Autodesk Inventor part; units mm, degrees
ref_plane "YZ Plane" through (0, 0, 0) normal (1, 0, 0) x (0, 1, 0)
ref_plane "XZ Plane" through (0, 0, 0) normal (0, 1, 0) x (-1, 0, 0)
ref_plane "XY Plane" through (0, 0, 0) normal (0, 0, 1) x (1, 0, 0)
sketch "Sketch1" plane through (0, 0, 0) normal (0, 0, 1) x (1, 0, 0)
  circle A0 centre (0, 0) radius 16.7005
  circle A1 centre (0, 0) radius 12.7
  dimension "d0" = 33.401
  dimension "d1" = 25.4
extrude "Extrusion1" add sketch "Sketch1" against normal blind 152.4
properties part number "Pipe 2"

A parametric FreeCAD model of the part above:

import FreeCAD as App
import Part
import Sketcher

V = App.Vector
Q = App.Units.Quantity

doc = App.newDocument("Part")
params = doc.addObject("Spreadsheet::Sheet", "Params")
for row, (alias, value) in enumerate([
    ("sketch1_diameter", "1 in"),
    ("sketch1_diameter2", "1.315 in"),
    ("pad1_length", "6 in"),
], start=1):
    params.set(f"A{row}", alias)
    params.set(f"B{row}", "=" + value)
    params.setAlias(f"B{row}", alias)

body = doc.addObject("PartDesign::Body", "Body")

sketch1 = body.newObject("Sketcher::SketchObject", "Sketch")
sketch1.AttachmentSupport = (doc.getObject("XY_Plane"), [""])
sketch1.MapMode = "FlatFace"
sketch1.addGeometry([
    Part.Circle(V(0, 0, 0), V(0, 0, 1), 17),
    Part.Circle(V(0, 0, 0), V(0, 0, 1), 13),
], False)
sketch1.addConstraint([
    Sketcher.Constraint("Coincident", 0, 3, -1, 1),
    Sketcher.Constraint("Coincident", 1, 3, -1, 1),
    Sketcher.Constraint("Diameter", 1, Q("1 in")),
    Sketcher.Constraint("Diameter", 0, Q("1.315 in")),
])
sketch1.setExpression("Constraints[2]", "Params.sketch1_diameter")
sketch1.setExpression("Constraints[3]", "Params.sketch1_diameter2")
pad1 = body.newObject("PartDesign::Pad", "Pad")
pad1.Profile = sketch1
pad1.setExpression("Length", "Params.pad1_length")
pad1.Reversed = True

doc.recompute()
